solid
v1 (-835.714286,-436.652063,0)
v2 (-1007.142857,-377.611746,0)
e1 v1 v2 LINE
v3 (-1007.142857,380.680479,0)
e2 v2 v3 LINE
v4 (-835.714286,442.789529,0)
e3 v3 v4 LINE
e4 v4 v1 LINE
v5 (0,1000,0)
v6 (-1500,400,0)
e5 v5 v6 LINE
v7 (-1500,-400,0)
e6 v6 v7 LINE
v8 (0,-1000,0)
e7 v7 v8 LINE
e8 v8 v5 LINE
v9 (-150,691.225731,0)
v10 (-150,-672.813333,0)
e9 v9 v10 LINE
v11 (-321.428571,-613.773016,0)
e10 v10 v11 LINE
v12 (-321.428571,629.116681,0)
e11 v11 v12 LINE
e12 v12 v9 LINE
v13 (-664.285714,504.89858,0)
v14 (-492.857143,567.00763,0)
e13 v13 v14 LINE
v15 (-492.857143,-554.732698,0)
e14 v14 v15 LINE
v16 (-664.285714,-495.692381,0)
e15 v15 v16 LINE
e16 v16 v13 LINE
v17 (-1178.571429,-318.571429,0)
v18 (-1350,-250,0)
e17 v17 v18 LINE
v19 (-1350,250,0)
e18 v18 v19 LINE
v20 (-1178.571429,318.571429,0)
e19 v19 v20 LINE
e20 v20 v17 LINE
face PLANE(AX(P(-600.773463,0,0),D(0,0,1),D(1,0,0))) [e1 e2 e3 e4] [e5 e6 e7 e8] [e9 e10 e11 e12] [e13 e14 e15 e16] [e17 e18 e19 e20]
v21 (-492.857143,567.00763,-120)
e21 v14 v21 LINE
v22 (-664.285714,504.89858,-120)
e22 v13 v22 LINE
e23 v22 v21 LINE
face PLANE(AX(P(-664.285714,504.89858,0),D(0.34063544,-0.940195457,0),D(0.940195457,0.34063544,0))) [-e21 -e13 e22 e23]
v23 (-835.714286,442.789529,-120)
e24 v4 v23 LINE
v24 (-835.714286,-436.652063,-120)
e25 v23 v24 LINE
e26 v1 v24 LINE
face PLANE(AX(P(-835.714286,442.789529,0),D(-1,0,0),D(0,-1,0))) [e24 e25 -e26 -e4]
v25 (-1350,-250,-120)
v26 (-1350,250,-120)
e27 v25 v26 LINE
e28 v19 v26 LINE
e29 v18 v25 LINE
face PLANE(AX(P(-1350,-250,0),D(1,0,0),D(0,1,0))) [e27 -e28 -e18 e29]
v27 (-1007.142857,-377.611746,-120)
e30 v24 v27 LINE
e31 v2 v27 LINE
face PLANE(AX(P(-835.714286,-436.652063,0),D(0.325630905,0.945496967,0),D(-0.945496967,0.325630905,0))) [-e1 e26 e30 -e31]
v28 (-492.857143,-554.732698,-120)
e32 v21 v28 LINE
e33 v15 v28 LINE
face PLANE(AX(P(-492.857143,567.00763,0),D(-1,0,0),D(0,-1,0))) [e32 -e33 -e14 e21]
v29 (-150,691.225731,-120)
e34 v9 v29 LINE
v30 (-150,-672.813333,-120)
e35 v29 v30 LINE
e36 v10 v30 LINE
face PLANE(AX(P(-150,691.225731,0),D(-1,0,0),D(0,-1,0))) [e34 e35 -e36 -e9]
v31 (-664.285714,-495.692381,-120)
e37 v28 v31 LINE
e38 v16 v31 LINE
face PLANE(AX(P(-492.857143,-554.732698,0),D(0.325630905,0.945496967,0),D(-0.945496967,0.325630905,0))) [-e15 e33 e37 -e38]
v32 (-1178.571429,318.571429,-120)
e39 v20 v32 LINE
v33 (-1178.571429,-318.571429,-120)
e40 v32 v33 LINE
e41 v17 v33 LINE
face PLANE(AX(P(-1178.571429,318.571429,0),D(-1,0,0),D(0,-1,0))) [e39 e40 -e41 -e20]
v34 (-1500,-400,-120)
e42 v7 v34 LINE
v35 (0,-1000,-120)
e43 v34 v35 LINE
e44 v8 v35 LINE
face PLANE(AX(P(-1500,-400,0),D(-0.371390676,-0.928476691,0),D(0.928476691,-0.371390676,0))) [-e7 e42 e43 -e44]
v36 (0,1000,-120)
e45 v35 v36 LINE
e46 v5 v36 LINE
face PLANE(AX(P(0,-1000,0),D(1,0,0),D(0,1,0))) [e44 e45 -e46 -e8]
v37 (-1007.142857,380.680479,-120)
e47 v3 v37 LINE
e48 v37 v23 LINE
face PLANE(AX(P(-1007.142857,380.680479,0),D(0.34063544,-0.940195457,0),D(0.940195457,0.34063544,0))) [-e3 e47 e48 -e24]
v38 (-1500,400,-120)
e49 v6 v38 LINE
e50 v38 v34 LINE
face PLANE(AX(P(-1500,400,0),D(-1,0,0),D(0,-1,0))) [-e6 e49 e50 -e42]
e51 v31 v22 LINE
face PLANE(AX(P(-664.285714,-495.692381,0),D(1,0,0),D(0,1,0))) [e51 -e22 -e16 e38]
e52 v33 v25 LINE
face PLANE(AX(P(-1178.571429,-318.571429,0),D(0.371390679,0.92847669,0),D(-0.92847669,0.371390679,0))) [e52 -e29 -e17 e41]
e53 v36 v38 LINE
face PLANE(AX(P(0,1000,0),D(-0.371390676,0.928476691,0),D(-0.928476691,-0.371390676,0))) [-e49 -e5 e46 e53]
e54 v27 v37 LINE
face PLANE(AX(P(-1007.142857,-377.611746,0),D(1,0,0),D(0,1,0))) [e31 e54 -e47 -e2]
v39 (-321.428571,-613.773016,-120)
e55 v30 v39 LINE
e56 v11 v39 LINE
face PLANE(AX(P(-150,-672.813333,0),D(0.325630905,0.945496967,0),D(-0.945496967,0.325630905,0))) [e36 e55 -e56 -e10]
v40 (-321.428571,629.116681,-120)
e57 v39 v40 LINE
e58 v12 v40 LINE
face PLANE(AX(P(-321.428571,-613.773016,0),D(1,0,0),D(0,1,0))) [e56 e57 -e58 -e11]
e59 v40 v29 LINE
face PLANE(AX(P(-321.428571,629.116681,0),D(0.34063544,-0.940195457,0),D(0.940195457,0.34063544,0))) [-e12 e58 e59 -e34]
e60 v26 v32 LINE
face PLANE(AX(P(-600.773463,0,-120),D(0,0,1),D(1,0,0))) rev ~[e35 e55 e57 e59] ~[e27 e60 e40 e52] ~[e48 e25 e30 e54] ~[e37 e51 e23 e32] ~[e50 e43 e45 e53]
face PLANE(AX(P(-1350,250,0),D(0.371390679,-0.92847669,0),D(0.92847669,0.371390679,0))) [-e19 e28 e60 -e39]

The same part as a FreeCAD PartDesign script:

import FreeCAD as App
import Part
import Sketcher
Q = App.Units.Quantity


def add_polygon(sketch, points):
    """Adds a closed chain of lines whose ends are joined by coincident constraints."""
    first, n = sketch.GeometryCount, len(points)
    for a, b in zip(points, points[1:] + points[:1]):
        sketch.addGeometry(Part.LineSegment(App.Vector(*a, 0), App.Vector(*b, 0)), False)
    for i in range(n):
        sketch.addConstraint(Sketcher.Constraint("Coincident", first + i, 2, first + (i + 1) % n, 1))

doc = App.newDocument("Part")
body = doc.addObject("PartDesign::Body", "Body")

# Sketch on XY plane
sketch1 = doc.addObject("Sketcher::SketchObject", "Sketch")
body.addObject(sketch1)
sketch1.AttachmentSupport = (doc.XY_Plane, [""])
sketch1.MapMode = "FlatFace"
add_polygon(sketch1, [(0, -1000), (0, 1000), (-1500, 400), (-1500, -400)])  # lines 0-3
add_polygon(sketch1, [(-1178.571429, -318.571429), (-1350, -250), (-1350, 250), (-1178.571429, 318.571429)])  # lines 4-7
add_polygon(sketch1, [(-835.714286, 442.789529), (-835.714286, -436.652063), (-1007.142857, -377.611746), (-1007.142857, 380.680479)])  # lines 8-11
add_polygon(sketch1, [(-492.857143, -554.732698), (-664.285714, -495.692381), (-664.285714, 504.89858), (-492.857143, 567.00763)])  # lines 12-15
add_polygon(sketch1, [(-321.428571, -613.773016), (-321.428571, 629.116681), (-150, 691.225731), (-150, -672.813333)])  # lines 16-19
sketch1.addConstraint([
    Sketcher.Constraint("Vertical", 0),
    Sketcher.Constraint("Vertical", 2),
    Sketcher.Constraint("Vertical", 5),
    Sketcher.Constraint("Vertical", 7),
    Sketcher.Constraint("Vertical", 8),
    Sketcher.Constraint("Vertical", 10),
    Sketcher.Constraint("Vertical", 13),
    Sketcher.Constraint("Vertical", 15),
    Sketcher.Constraint("Vertical", 16),
    Sketcher.Constraint("Vertical", 18),
    Sketcher.Constraint("Symmetric", 0, 2, 3, 2, -1, 1),
    Sketcher.Constraint("Parallel", 3, 4),
    Sketcher.Constraint("Parallel", 1, 6),
    Sketcher.Constraint("Parallel", 9, 12),
    Sketcher.Constraint("Parallel", 11, 14),
    Sketcher.Constraint("Parallel", 14, 17),
    Sketcher.Constraint("Parallel", 12, 19),
    Sketcher.Constraint("Equal", 1, 3),
    Sketcher.Constraint("Equal", 9, 12),
    Sketcher.Constraint("Equal", 14, 17),
    Sketcher.Constraint("DistanceY", 0, 1, 0, 2, Q("2000 mm")),
    Sketcher.Constraint("DistanceY", 2, 2, 2, 1, Q("800 mm")),
    Sketcher.Constraint("DistanceY", 5, 1, 5, 2, Q("500 mm")),
    Sketcher.Constraint("DistanceX", 1, 2, -1, 1, Q("1500 mm")),
    Sketcher.Constraint("DistanceX", 4, 2, -1, 1, Q("1350 mm")),
    Sketcher.Constraint("DistanceY", 4, 2, -1, 1, Q("250 mm")),
    Sketcher.Constraint("DistanceX", 17, 2, -1, 1, Q("150 mm")),
    Sketcher.Constraint("DistanceY", 7, 2, 7, 1, Q("637.142858 mm")),
    Sketcher.Constraint("DistanceY", 8, 2, 8, 1, Q("879.441592 mm")),
    Sketcher.Constraint("DistanceY", 13, 1, 13, 2, Q("1000.590961 mm")),
    Sketcher.Constraint("DistanceY", 15, 2, -1, 1, Q("554.732698 mm")),
    Sketcher.Constraint("DistanceY", 6, 2, 11, 2, Q("124.2181 mm")),
    Sketcher.Constraint("DistanceY", 10, 2, 13, 2, Q("124.218101 mm")),
    Sketcher.Constraint("DistanceY", 13, 2, 16, 2, Q("124.218101 mm")),
    Sketcher.Constraint("DistanceY", 16, 1, 16, 2, Q("1242.889697 mm")),
    Sketcher.Constraint("DistanceY", -1, 1, 10, 2, Q("380.680479 mm")),
    Sketcher.Constraint("DistanceX", 16, 2, -1, 1, Q("321.428571 mm")),
    Sketcher.Constraint("DistanceX", 8, 2, -1, 1, Q("835.714286 mm")),
    Sketcher.Constraint("DistanceX", 12, 2, -1, 1, Q("664.285714 mm")),
])
pad1 = doc.addObject("PartDesign::Pad", "Pad")
body.addObject(pad1)
pad1.Profile = sketch1
pad1.Length = 120
pad1.Reversed = True

# Sketch on XY plane
sketch2 = doc.addObject("Sketcher::SketchObject", "Sketch001")
body.addObject(sketch2)
sketch2.AttachmentSupport = (doc.XY_Plane, [""])
sketch2.MapMode = "FlatFace"
add_polygon(sketch2, [(0, -1000), (0, 1000), (-1500, 400), (-1500, -400)])  # lines 0-3
add_polygon(sketch2, [(-1178.571429, -318.571429), (-1350, -250), (-1350, 250), (-1178.571429, 318.571429)])  # lines 4-7
add_polygon(sketch2, [(-835.714286, 442.789529), (-835.714286, -436.652063), (-1007.142857, -377.611746), (-1007.142857, 380.680479)])  # lines 8-11
add_polygon(sketch2, [(-492.857143, -554.732698), (-664.285714, -495.692381), (-664.285714, 504.89858), (-492.857143, 567.00763)])  # lines 12-15
add_polygon(sketch2, [(-321.428571, -613.773016), (-321.428571, 629.116681), (-150, 691.225731), (-150, -672.813333)])  # lines 16-19
sketch2.addConstraint([
    Sketcher.Constraint("Vertical", 0),
    Sketcher.Constraint("Vertical", 2),
    Sketcher.Constraint("Vertical", 5),
    Sketcher.Constraint("Vertical", 7),
    Sketcher.Constraint("Vertical", 8),
    Sketcher.Constraint("Vertical", 10),
    Sketcher.Constraint("Vertical", 13),
    Sketcher.Constraint("Vertical", 15),
    Sketcher.Constraint("Vertical", 16),
    Sketcher.Constraint("Vertical", 18),
    Sketcher.Constraint("Symmetric", 0, 2, 3, 2, -1, 1),
    Sketcher.Constraint("Parallel", 3, 4),
    Sketcher.Constraint("Parallel", 1, 6),
    Sketcher.Constraint("Parallel", 9, 12),
    Sketcher.Constraint("Parallel", 11, 14),
    Sketcher.Constraint("Parallel", 14, 17),
    Sketcher.Constraint("Parallel", 12, 19),
    Sketcher.Constraint("Equal", 1, 3),
    Sketcher.Constraint("Equal", 9, 12),
    Sketcher.Constraint("Equal", 14, 17),
    Sketcher.Constraint("DistanceY", 0, 1, 0, 2, Q("2000 mm")),
    Sketcher.Constraint("DistanceY", 2, 2, 2, 1, Q("800 mm")),
    Sketcher.Constraint("DistanceY", 5, 1, 5, 2, Q("500 mm")),
    Sketcher.Constraint("DistanceX", 1, 2, -1, 1, Q("1500 mm")),
    Sketcher.Constraint("DistanceX", 4, 2, -1, 1, Q("1350 mm")),
    Sketcher.Constraint("DistanceY", 4, 2, -1, 1, Q("250 mm")),
    Sketcher.Constraint("DistanceX", 17, 2, -1, 1, Q("150 mm")),
    Sketcher.Constraint("DistanceY", 7, 2, 7, 1, Q("637.142858 mm")),
    Sketcher.Constraint("DistanceY", 8, 2, 8, 1, Q("879.441592 mm")),
    Sketcher.Constraint("DistanceY", 13, 1, 13, 2, Q("1000.590961 mm")),
    Sketcher.Constraint("DistanceY", 15, 2, -1, 1, Q("554.732698 mm")),
    Sketcher.Constraint("DistanceY", 6, 2, 11, 2, Q("124.2181 mm")),
    Sketcher.Constraint("DistanceY", 10, 2, 13, 2, Q("124.218101 mm")),
    Sketcher.Constraint("DistanceY", 13, 2, 16, 2, Q("124.218101 mm")),
    Sketcher.Constraint("DistanceY", 16, 1, 16, 2, Q("1242.889697 mm")),
    Sketcher.Constraint("DistanceY", -1, 1, 10, 2, Q("380.680479 mm")),
    Sketcher.Constraint("DistanceX", 16, 2, -1, 1, Q("321.428571 mm")),
    Sketcher.Constraint("DistanceX", 8, 2, -1, 1, Q("835.714286 mm")),
    Sketcher.Constraint("DistanceX", 12, 2, -1, 1, Q("664.285714 mm")),
])
pad2 = doc.addObject("PartDesign::Pad", "Pad001")
body.addObject(pad2)
pad2.Profile = sketch2
pad2.Length = 120
pad2.Reversed = True

doc.recompute()
